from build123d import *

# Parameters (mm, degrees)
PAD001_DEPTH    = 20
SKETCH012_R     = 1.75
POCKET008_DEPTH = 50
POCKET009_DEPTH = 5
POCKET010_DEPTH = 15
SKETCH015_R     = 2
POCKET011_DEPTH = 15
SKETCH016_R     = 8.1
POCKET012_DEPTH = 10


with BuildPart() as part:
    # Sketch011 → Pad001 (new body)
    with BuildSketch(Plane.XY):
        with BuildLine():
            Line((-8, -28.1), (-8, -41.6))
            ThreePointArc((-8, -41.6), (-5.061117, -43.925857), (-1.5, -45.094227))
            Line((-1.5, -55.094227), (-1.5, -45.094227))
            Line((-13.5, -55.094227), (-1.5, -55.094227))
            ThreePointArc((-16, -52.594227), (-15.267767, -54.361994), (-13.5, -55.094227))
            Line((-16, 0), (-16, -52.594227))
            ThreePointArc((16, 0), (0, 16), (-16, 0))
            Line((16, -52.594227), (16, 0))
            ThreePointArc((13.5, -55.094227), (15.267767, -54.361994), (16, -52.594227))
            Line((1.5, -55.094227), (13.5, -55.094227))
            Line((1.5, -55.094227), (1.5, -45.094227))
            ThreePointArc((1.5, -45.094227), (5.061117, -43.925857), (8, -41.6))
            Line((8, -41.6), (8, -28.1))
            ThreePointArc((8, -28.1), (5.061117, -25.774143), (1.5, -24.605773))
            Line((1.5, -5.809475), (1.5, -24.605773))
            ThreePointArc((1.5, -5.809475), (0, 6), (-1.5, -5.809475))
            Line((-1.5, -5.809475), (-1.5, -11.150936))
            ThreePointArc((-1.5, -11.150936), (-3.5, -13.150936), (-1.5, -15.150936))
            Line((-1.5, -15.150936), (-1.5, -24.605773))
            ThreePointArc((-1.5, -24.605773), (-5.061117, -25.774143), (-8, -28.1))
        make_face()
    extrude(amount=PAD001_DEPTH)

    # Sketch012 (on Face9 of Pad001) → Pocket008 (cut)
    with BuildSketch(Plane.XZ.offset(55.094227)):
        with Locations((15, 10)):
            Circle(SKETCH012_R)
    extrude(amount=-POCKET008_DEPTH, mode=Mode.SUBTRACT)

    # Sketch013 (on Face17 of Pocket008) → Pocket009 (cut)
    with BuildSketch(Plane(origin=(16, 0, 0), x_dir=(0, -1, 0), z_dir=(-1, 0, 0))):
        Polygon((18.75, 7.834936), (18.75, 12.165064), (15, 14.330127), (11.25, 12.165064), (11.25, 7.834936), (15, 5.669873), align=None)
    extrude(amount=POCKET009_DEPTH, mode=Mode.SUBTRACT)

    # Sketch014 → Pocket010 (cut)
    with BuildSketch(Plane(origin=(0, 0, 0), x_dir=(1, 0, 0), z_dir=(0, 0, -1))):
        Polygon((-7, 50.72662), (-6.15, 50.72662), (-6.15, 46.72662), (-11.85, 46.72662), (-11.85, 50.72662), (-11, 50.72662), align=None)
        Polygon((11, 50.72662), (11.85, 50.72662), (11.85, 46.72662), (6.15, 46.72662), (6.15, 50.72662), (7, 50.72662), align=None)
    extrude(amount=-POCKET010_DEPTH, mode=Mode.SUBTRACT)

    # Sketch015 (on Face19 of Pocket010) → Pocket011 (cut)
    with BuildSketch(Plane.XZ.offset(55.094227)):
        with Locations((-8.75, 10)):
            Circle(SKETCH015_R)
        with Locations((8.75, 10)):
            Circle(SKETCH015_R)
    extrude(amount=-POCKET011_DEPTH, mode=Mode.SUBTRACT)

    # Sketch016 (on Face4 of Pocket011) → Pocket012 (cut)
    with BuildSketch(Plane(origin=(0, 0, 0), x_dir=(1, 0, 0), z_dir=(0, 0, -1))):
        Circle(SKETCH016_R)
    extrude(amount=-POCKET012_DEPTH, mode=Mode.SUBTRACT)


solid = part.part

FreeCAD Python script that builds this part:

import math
import FreeCAD as App
import Part
import Sketcher
from FreeCAD import Vector
Q = App.Units.Quantity

doc = App.newDocument("Part")
body = doc.addObject("PartDesign::Body", "Body")

sketch1 = doc.addObject("Sketcher::SketchObject", "Sketch")
body.addObject(sketch1)
sketch1.AttachmentSupport = (doc.XY_Plane, [""])
sketch1.MapMode = "FlatFace"
sketch1.addGeometry([
    Part.LineSegment(Vector(-8, -41.6, 0), Vector(-8, -28.1, 0)),
    Part.ArcOfCircle(Part.Circle(Vector(-0.000001, -35.188888, 0), Vector(0, 0, 1), 10.688888), math.radians(98.067092), math.radians(138.455492)),
    Part.LineSegment(Vector(-1.5, -24.605773, 0), Vector(-1.5, -15.150936, 0)),
    Part.ArcOfCircle(Part.Circle(Vector(-1.5, -13.150936, 0), Vector(0, 0, 1), 2), math.radians(90), math.radians(270)),
    Part.LineSegment(Vector(-1.5, -11.150936, 0), Vector(-1.5, -5.809475, 0)),
    Part.ArcOfCircle(Part.Circle(Vector(0, 0, 0), Vector(0, 0, 1), 6), math.radians(-75.522488), math.radians(255.522488)),
    Part.LineSegment(Vector(1.5, -5.809475, 0), Vector(1.5, -24.605773, 0)),
    Part.ArcOfCircle(Part.Circle(Vector(0.000001, -35.188888, 0), Vector(0, 0, 1), 10.688888), math.radians(41.544508), math.radians(81.932908)),
    Part.LineSegment(Vector(8, -28.1, 0), Vector(8, -41.6, 0)),
    Part.ArcOfCircle(Part.Circle(Vector(0.000001, -34.511112, 0), Vector(0, 0, 1), 10.688888), math.radians(-81.932908), math.radians(-41.544508)),
    Part.LineSegment(Vector(1.5, -45.094227, 0), Vector(1.5, -55.094227, 0)),
    Part.LineSegment(Vector(1.5, -55.094227, 0), Vector(13.5, -55.094227, 0)),
    Part.ArcOfCircle(Part.Circle(Vector(13.5, -52.594227, 0), Vector(0, 0, 1), 2.5), math.radians(-90.000004), math.radians(0.000004)),
    Part.LineSegment(Vector(16, -52.594227, 0), Vector(16, 0, 0)),
    Part.ArcOfCircle(Part.Circle(Vector(0, 0, 0), Vector(0, 0, 1), 16), math.radians(0), math.radians(180)),
    Part.LineSegment(Vector(-16, 0, 0), Vector(-16, -52.594227, 0)),
    Part.ArcOfCircle(Part.Circle(Vector(-13.5, -52.594227, 0), Vector(0, 0, 1), 2.5), math.radians(179.999996), math.radians(270.000004)),
    Part.LineSegment(Vector(-13.5, -55.094227, 0), Vector(-1.5, -55.094227, 0)),
    Part.LineSegment(Vector(-1.5, -55.094227, 0), Vector(-1.5, -45.094227, 0)),
    Part.ArcOfCircle(Part.Circle(Vector(-0.000001, -34.511112, 0), Vector(0, 0, 1), 10.688888), math.radians(-138.455492), math.radians(-98.067092)),
], False)
sketch1.addConstraint([
    Sketcher.Constraint("Coincident", 0, 2, 1, 2),
    Sketcher.Constraint("Coincident", 1, 1, 2, 1),
    Sketcher.Constraint("Coincident", 2, 2, 3, 2),
    Sketcher.Constraint("Coincident", 3, 1, 4, 1),
    Sketcher.Constraint("Coincident", 4, 2, 5, 2),
    Sketcher.Constraint("Coincident", 5, 1, 6, 1),
    Sketcher.Constraint("Coincident", 6, 2, 7, 2),
    Sketcher.Constraint("Coincident", 7, 1, 8, 1),
    Sketcher.Constraint("Coincident", 8, 2, 9, 2),
    Sketcher.Constraint("Coincident", 9, 1, 10, 1),
    Sketcher.Constraint("Coincident", 10, 2, 11, 1),
    Sketcher.Constraint("Tangent", 11, 2, 12, 1),
    Sketcher.Constraint("Tangent", 12, 2, 13, 1),
    Sketcher.Constraint("Tangent", 13, 2, 14, 1),
    Sketcher.Constraint("Tangent", 14, 2, 15, 1),
    Sketcher.Constraint("Tangent", 15, 2, 16, 1),
    Sketcher.Constraint("Tangent", 16, 2, 17, 1),
    Sketcher.Constraint("Coincident", 17, 2, 18, 1),
    Sketcher.Constraint("Coincident", 18, 2, 19, 2),
    Sketcher.Constraint("Coincident", 19, 1, 0, 1),
    Sketcher.Constraint("Vertical", 0),
    Sketcher.Constraint("Vertical", 2),
    Sketcher.Constraint("Vertical", 4),
    Sketcher.Constraint("Vertical", 6),
    Sketcher.Constraint("Vertical", 8),
    Sketcher.Constraint("Vertical", 10),
    Sketcher.Constraint("Horizontal", 11),
    Sketcher.Constraint("Vertical", 13),
    Sketcher.Constraint("Vertical", 15),
    Sketcher.Constraint("Horizontal", 17),
    Sketcher.Constraint("Vertical", 18),
    Sketcher.Constraint("Coincident", 5, 3, -1, 1),
    Sketcher.Constraint("Coincident", 14, 3, -1, 1),
    Sketcher.Constraint("Coincident", 7, 3, 1, 3),
    Sketcher.Constraint("Coincident", 19, 3, 9, 3),
    Sketcher.Constraint("Equal", 1, 7),
    Sketcher.Constraint("Equal", 7, 9),
    Sketcher.Constraint("Equal", 12, 16),
    Sketcher.Constraint("Equal", 9, 19),
    Sketcher.Constraint("Symmetric", 1, 1, 6, 2, -2),
    Sketcher.Constraint("Symmetric", 10, 2, 17, 2, -2),
    Sketcher.Constraint("Symmetric", 8, 2, 19, 1, -2),
    Sketcher.Constraint("Horizontal", 4, 2, 5, 1),
    Sketcher.Constraint("Vertical", 3, 3, 1, 1),
    Sketcher.Constraint("Vertical", 6, 2, 9, 1),
    Sketcher.Constraint("Radius", 3, 2.0),
    Sketcher.Constraint("Radius", 5, 6.0),
    Sketcher.Constraint("Radius", 14, 16.0),
    Sketcher.Constraint("Radius", 12, 2.5),
    Sketcher.Constraint("DistanceX", 11, 1, 11, 2, 12.0),
    Sketcher.Constraint("DistanceY", 10, 2, 10, 1, 10.0),
    Sketcher.Constraint("DistanceY", 0, 1, 0, 2, 13.5),
    Sketcher.Constraint("DistanceX", 0, 2, -1, 1, 8.0),
    Sketcher.Constraint("DistanceY", 0, 2, -1, 1, 28.1),
    Sketcher.Constraint("DistanceY", 6, 2, 6, 1, 18.796298),
    Sketcher.Constraint("DistanceY", 4, 1, 4, 2, 5.341461),
])
pad1 = doc.addObject("PartDesign::Pad", "Pad")
body.addObject(pad1)
pad1.Profile = sketch1
pad1.Length = 20

sketch2 = doc.addObject("Sketcher::SketchObject", "Sketch001")
body.addObject(sketch2)
sketch2.AttachmentSupport = (doc.XZ_Plane, [""])
sketch2.MapMode = "FlatFace"
sketch2.AttachmentOffset = App.Placement(Vector(0, 0, 55.094227), App.Rotation())
sketch2.addGeometry(Part.Circle(Vector(15, 10, 0), Vector(0, 0, 1), 1.75), False)
sketch2.addConstraint([
    Sketcher.Constraint("Diameter", 0, 3.5),
    Sketcher.Constraint("DistanceX", -1, 1, 0, 3, 15.0),
    Sketcher.Constraint("DistanceY", -1, 1, 0, 3, 10.0),
])
pocket1 = doc.addObject("PartDesign::Pocket", "Pocket")
body.addObject(pocket1)
pocket1.Profile = sketch2
pocket1.Length = 50

sketch3 = doc.addObject("Sketcher::SketchObject", "Sketch002")
body.addObject(sketch3)
sketch3.AttachmentSupport = (doc.YZ_Plane, [""])
sketch3.MapMode = "FlatFace"
sketch3.AttachmentOffset = App.Placement(Vector(0, 0, 16), App.Rotation())
sketch3.addGeometry([
    Part.LineSegment(Vector(-18.75, 7.834936, 0), Vector(-18.75, 12.165064, 0)),
    Part.LineSegment(Vector(-18.75, 12.165064, 0), Vector(-15, 14.330127, 0)),
    Part.LineSegment(Vector(-15, 14.330127, 0), Vector(-11.25, 12.165064, 0)),
    Part.LineSegment(Vector(-11.25, 12.165064, 0), Vector(-11.25, 7.834936, 0)),
    Part.LineSegment(Vector(-11.25, 7.834936, 0), Vector(-15, 5.669873, 0)),
    Part.LineSegment(Vector(-15, 5.669873, 0), Vector(-18.75, 7.834936, 0)),
], False)
sketch3.addConstraint([
    Sketcher.Constraint("Coincident", 0, 2, 1, 1),
    Sketcher.Constraint("Coincident", 1, 2, 2, 1),
    Sketcher.Constraint("Coincident", 2, 2, 3, 1),
    Sketcher.Constraint("Coincident", 3, 2, 4, 1),
    Sketcher.Constraint("Coincident", 4, 2, 5, 1),
    Sketcher.Constraint("Coincident", 5, 2, 0, 1),
    Sketcher.Constraint("Vertical", 0),
    Sketcher.Constraint("Vertical", 3),
    Sketcher.Constraint("Parallel", 1, 4),
    Sketcher.Constraint("Parallel", 2, 5),
    Sketcher.Constraint("Horizontal", 0, 2, 2, 2),
    Sketcher.Constraint("Horizontal", 3, 2, 5, 2),
    Sketcher.Constraint("Vertical", 1, 2, 4, 2),
    Sketcher.Constraint("Angle", 1, Q("29.999994 deg")),
    Sketcher.Constraint("DistanceX", 1, 2, -1, 1, 15.0),
    Sketcher.Constraint("DistanceX", 0, 2, 2, 2, 7.5),
    Sketcher.Constraint("DistanceY", 0, 1, 0, 2, 4.330128),
    Sketcher.Constraint("DistanceY", -1, 1, 0, 2, 12.165064),
])
pocket2 = doc.addObject("PartDesign::Pocket", "Pocket001")
body.addObject(pocket2)
pocket2.Profile = sketch3
pocket2.Length = 5

sketch4 = doc.addObject("Sketcher::SketchObject", "Sketch003")
body.addObject(sketch4)
sketch4.AttachmentSupport = (doc.XY_Plane, [""])
sketch4.MapMode = "FlatFace"
sketch4.addGeometry([
    Part.LineSegment(Vector(-6.15, -50.72662, 0), Vector(-11.85, -50.72662, 0)),
    Part.LineSegment(Vector(-11.85, -50.72662, 0), Vector(-11.85, -46.72662, 0)),
    Part.LineSegment(Vector(-11.85, -46.72662, 0), Vector(-6.15, -46.72662, 0)),
    Part.LineSegment(Vector(-6.15, -46.72662, 0), Vector(-6.15, -50.72662, 0)),
    Part.LineSegment(Vector(11.85, -50.72662, 0), Vector(6.15, -50.72662, 0)),
    Part.LineSegment(Vector(6.15, -50.72662, 0), Vector(6.15, -46.72662, 0)),
    Part.LineSegment(Vector(6.15, -46.72662, 0), Vector(11.85, -46.72662, 0)),
    Part.LineSegment(Vector(11.85, -46.72662, 0), Vector(11.85, -50.72662, 0)),
], False)
sketch4.addConstraint([
    Sketcher.Constraint("Coincident", 0, 2, 1, 1),
    Sketcher.Constraint("Coincident", 1, 2, 2, 1),
    Sketcher.Constraint("Coincident", 2, 2, 3, 1),
    Sketcher.Constraint("Coincident", 3, 2, 0, 1),
    Sketcher.Constraint("Coincident", 4, 2, 5, 1),
    Sketcher.Constraint("Coincident", 5, 2, 6, 1),
    Sketcher.Constraint("Coincident", 6, 2, 7, 1),
    Sketcher.Constraint("Coincident", 7, 2, 4, 1),
    Sketcher.Constraint("Horizontal", 0),
    Sketcher.Constraint("Vertical", 1),
    Sketcher.Constraint("Horizontal", 2),
    Sketcher.Constraint("Vertical", 3),
    Sketcher.Constraint("Horizontal", 4),
    Sketcher.Constraint("Vertical", 5),
    Sketcher.Constraint("Horizontal", 6),
    Sketcher.Constraint("Vertical", 7),
    Sketcher.Constraint("Symmetric", 3, 2, 4, 2, -2),
    Sketcher.Constraint("Symmetric", 1, 2, 6, 2, -2),
    Sketcher.Constraint("DistanceY", 1, 1, 1, 2, 4.0),
    Sketcher.Constraint("DistanceX", 0, 2, 0, 1, 5.7),
    Sketcher.Constraint("DistanceX", 0, 2, 4, 2, 18.0),
    Sketcher.Constraint("DistanceY", 0, 2, -1, 1, 50.72662),
])
pocket3 = doc.addObject("PartDesign::Pocket", "Pocket002")
body.addObject(pocket3)
pocket3.Profile = sketch4
pocket3.Length = 15
pocket3.Reversed = True

sketch5 = doc.addObject("Sketcher::SketchObject", "Sketch004")
body.addObject(sketch5)
sketch5.AttachmentSupport = (doc.XZ_Plane, [""])
sketch5.MapMode = "FlatFace"
sketch5.AttachmentOffset = App.Placement(Vector(0, 0, 55.094227), App.Rotation())
sketch5.addGeometry([
    Part.Circle(Vector(-8.75, 10, 0), Vector(0, 0, 1), 2),
    Part.Circle(Vector(8.75, 10, 0), Vector(0, 0, 1), 2),
], False)
sketch5.addConstraint([
    Sketcher.Constraint("Equal", 0, 1),
    Sketcher.Constraint("Symmetric", 0, 3, 1, 3, -2),
    Sketcher.Constraint("Diameter", 0, 4.0),
    Sketcher.Constraint("DistanceY", -1, 1, 0, 3, 10.0),
    Sketcher.Constraint("DistanceX", 0, 3, 1, 3, 17.5),
])
pocket4 = doc.addObject("PartDesign::Pocket", "Pocket003")
body.addObject(pocket4)
pocket4.Profile = sketch5
pocket4.Length = 15

sketch6 = doc.addObject("Sketcher::SketchObject", "Sketch005")
body.addObject(sketch6)
sketch6.AttachmentSupport = (doc.XY_Plane, [""])
sketch6.MapMode = "FlatFace"
sketch6.addGeometry(Part.Circle(Vector(0, 0, 0), Vector(0, 0, 1), 8.1), False)
sketch6.addConstraint([
    Sketcher.Constraint("Coincident", 0, 3, -1, 1),
    Sketcher.Constraint("Diameter", 0, 16.2),
])
pocket5 = doc.addObject("PartDesign::Pocket", "Pocket004")
body.addObject(pocket5)
pocket5.Profile = sketch6
pocket5.Length = 10
pocket5.Reversed = True

doc.recompute()
